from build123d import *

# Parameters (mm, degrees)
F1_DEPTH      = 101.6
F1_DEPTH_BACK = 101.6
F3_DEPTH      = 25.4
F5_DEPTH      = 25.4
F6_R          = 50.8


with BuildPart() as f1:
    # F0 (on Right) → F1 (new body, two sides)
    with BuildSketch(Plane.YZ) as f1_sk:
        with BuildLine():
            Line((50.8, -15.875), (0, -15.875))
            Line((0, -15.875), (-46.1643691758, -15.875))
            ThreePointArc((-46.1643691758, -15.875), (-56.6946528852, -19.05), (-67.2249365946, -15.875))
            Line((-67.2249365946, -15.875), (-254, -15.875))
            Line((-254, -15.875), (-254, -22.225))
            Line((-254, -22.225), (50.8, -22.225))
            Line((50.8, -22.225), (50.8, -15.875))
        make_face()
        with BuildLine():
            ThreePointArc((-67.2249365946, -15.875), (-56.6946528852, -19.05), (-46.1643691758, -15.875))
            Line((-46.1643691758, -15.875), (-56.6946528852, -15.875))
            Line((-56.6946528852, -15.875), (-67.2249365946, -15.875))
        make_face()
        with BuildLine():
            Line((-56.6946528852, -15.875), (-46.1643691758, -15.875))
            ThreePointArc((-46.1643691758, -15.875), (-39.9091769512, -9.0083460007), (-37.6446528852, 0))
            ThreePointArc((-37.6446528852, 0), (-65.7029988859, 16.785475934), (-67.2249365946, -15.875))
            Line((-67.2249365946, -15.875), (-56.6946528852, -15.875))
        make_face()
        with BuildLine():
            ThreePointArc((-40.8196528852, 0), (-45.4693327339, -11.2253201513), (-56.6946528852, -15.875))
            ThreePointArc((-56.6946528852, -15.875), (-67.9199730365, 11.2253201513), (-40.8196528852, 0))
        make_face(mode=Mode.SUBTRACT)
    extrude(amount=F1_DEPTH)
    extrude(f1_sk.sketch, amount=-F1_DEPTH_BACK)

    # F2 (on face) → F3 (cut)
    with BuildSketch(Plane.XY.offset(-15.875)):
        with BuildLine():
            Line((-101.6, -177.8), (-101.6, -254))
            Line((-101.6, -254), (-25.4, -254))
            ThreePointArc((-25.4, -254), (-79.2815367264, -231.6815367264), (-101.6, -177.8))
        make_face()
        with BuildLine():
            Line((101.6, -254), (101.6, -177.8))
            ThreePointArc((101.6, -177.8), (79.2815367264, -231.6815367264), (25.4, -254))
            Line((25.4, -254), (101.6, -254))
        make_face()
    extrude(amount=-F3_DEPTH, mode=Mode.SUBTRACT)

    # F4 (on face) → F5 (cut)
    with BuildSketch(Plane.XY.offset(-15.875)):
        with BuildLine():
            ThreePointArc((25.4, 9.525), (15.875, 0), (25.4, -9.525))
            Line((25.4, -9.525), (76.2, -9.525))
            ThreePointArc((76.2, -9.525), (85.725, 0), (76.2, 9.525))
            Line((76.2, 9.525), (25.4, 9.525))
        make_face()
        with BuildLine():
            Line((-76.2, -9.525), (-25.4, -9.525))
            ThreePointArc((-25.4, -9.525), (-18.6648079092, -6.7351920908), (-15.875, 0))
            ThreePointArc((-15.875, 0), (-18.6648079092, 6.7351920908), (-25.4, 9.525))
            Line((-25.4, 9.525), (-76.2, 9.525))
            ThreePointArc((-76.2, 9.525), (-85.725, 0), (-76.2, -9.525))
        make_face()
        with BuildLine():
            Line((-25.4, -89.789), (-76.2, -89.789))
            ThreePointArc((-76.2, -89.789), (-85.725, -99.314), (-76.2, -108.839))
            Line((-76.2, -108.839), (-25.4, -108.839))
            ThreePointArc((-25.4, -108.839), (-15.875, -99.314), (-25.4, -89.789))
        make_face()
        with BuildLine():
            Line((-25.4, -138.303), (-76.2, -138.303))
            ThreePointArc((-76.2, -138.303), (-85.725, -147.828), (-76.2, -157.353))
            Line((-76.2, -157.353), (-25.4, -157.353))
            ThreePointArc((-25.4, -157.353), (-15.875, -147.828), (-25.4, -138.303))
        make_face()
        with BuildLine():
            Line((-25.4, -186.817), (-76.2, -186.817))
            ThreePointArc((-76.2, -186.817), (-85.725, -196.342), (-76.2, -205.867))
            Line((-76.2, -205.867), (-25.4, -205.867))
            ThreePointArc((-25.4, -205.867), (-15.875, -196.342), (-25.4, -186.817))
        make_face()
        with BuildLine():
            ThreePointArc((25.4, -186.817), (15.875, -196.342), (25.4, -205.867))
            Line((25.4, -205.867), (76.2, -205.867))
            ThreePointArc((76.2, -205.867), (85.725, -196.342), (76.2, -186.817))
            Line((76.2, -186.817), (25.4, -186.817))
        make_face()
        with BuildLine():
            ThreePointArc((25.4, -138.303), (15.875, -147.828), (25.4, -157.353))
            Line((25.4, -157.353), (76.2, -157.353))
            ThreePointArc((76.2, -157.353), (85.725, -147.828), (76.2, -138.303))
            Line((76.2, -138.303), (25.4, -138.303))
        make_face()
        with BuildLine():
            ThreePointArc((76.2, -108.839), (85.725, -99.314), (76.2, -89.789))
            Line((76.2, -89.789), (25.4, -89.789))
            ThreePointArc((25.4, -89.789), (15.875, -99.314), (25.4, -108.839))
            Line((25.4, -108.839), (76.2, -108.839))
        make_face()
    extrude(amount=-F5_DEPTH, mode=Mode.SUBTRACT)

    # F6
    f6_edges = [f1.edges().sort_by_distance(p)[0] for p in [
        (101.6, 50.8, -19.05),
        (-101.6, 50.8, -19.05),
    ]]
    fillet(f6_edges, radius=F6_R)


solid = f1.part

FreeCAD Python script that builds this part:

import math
import FreeCAD as App
import Part
import Sketcher
Q = App.Units.Quantity


def edges_at(feature, points):
    """Names of the edges that pass closest to the given points."""
    edges = feature.Shape.Edges
    near = lambda p: min(range(len(edges)), key=lambda i: edges[i].distToShape(Part.Vertex(*p))[0])
    return sorted({f"Edge{near(p) + 1}" for p in points})

doc = App.newDocument("Part")
body = doc.addObject("PartDesign::Body", "Body")

# Sketch on YZ plane
sketch1 = body.newObject("Sketcher::SketchObject", "Sketch")
sketch1.AttachmentSupport = (doc.getObject("YZ_Plane"), [""])
sketch1.MapMode = "FlatFace"
sketch1.addGeometry(Part.LineSegment(App.Vector(51, -16, 0), App.Vector(-46, -16, 0)), False)
sketch1.addGeometry(Part.ArcOfCircle(Part.Circle(App.Vector(-57, 0, 0), App.Vector(0, 0, 1), 19), math.radians(-56), math.radians(0)), False)
sketch1.addGeometry(Part.ArcOfCircle(Part.Circle(App.Vector(-57, 0, 0), App.Vector(0, 0, 1), 19), math.radians(0), math.radians(236)), False)
sketch1.addGeometry(Part.LineSegment(App.Vector(-67, -16, 0), App.Vector(-254, -16, 0)), False)
sketch1.addGeometry(Part.LineSegment(App.Vector(-254, -16, 0), App.Vector(-254, -22, 0)), False)
sketch1.addGeometry(Part.LineSegment(App.Vector(-254, -22, 0), App.Vector(51, -22, 0)), False)
sketch1.addGeometry(Part.LineSegment(App.Vector(51, -22, 0), App.Vector(51, -16, 0)), False)
sketch1.addGeometry(Part.ArcOfCircle(Part.Circle(App.Vector(-57, 0, 0), App.Vector(0, 0, 1), 16), math.radians(0), math.radians(270)), False)
sketch1.addGeometry(Part.ArcOfCircle(Part.Circle(App.Vector(-57, 0, 0), App.Vector(0, 0, 1), 16), math.radians(-90), math.radians(0)), False)
sketch1.addConstraint(Sketcher.Constraint("Coincident", 0, 2, 1, 1))
sketch1.addConstraint(Sketcher.Constraint("Tangent", 1, 2, 2, 1))
sketch1.addConstraint(Sketcher.Constraint("Coincident", 2, 2, 3, 1))
sketch1.addConstraint(Sketcher.Constraint("Coincident", 3, 2, 4, 1))
sketch1.addConstraint(Sketcher.Constraint("Coincident", 4, 2, 5, 1))
sketch1.addConstraint(Sketcher.Constraint("Coincident", 5, 2, 6, 1))
sketch1.addConstraint(Sketcher.Constraint("Coincident", 6, 2, 0, 1))
sketch1.addConstraint(Sketcher.Constraint("Tangent", 7, 1, 8, 2))
sketch1.addConstraint(Sketcher.Constraint("Coincident", 8, 1, 7, 2))
sketch1.addConstraint(Sketcher.Constraint("Horizontal", 0))
sketch1.addConstraint(Sketcher.Constraint("Horizontal", 3))
sketch1.addConstraint(Sketcher.Constraint("Vertical", 4))
sketch1.addConstraint(Sketcher.Constraint("Horizontal", 5))
sketch1.addConstraint(Sketcher.Constraint("Vertical", 6))
sketch1.addConstraint(Sketcher.Constraint("Coincident", 7, 3, 1, 3))
sketch1.addConstraint(Sketcher.Constraint("Equal", 1, 2))
sketch1.addConstraint(Sketcher.Constraint("PointOnObject", 1, 3, -1))
sketch1.addConstraint(Sketcher.Constraint("PointOnObject", 1, 2, -1))
sketch1.addConstraint(Sketcher.Constraint("PointOnObject", 7, 1, -1))
sketch1.addConstraint(Sketcher.Constraint("Horizontal", 0, 2, 2, 2))
sketch1.addConstraint(Sketcher.Constraint("Horizontal", 6, 2, 8, 1))
sketch1.addConstraint(Sketcher.Constraint("Vertical", 7, 3, 8, 1))
sketch1.addConstraint(Sketcher.Constraint("DistanceX", 5, 1, 5, 2, Q("12 in")))
sketch1.addConstraint(Sketcher.Constraint("Radius", 1, Q("0.75 in")))
sketch1.addConstraint(Sketcher.Constraint("DistanceX", 3, 2, -1, 1, Q("10 in")))
sketch1.addConstraint(Sketcher.Constraint("Radius", 7, Q("0.625 in")))
sketch1.addConstraint(Sketcher.Constraint("DistanceY", 4, 2, 4, 1, Q("0.25 in")))
sketch1.addConstraint(Sketcher.Constraint("DistanceX", 0, 2, 0, 1, Q("96.964369 mm")))
pad1 = body.newObject("PartDesign::Pad", "Pad")
pad1.Profile = sketch1
pad1.Type = "TwoLengths"
pad1.Length = Q("4 in")
pad1.Length2 = Q("4 in")

# Sketch on XY plane
sketch2 = body.newObject("Sketcher::SketchObject", "Sketch001")
sketch2.AttachmentSupport = (doc.getObject("XY_Plane"), [""])
sketch2.MapMode = "FlatFace"
sketch2.AttachmentOffset = App.Placement(App.Vector(0, 0, -0.625 * 25.4), App.Rotation())
sketch2.addGeometry(Part.LineSegment(App.Vector(-102, -178, 0), App.Vector(-102, -254, 0)), False)
sketch2.addGeometry(Part.LineSegment(App.Vector(-102, -254, 0), App.Vector(-25, -254, 0)), False)
sketch2.addGeometry(Part.ArcOfCircle(Part.Circle(App.Vector(-25, -178, 0), App.Vector(0, 0, 1), 76), math.radians(180), math.radians(270)), False)
sketch2.addGeometry(Part.LineSegment(App.Vector(102, -254, 0), App.Vector(102, -178, 0)), False)
sketch2.addGeometry(Part.ArcOfCircle(Part.Circle(App.Vector(25, -178, 0), App.Vector(0, 0, 1), 76), math.radians(-90), math.radians(0)), False)
sketch2.addGeometry(Part.LineSegment(App.Vector(25, -254, 0), App.Vector(102, -254, 0)), False)
sketch2.addConstraint(Sketcher.Constraint("Coincident", 0, 2, 1, 1))
sketch2.addConstraint(Sketcher.Constraint("Tangent", 1, 2, 2, 2))
sketch2.addConstraint(Sketcher.Constraint("Tangent", 2, 1, 0, 1))
sketch2.addConstraint(Sketcher.Constraint("Tangent", 3, 2, 4, 2))
sketch2.addConstraint(Sketcher.Constraint("Tangent", 4, 1, 5, 1))
sketch2.addConstraint(Sketcher.Constraint("Coincident", 5, 2, 3, 1))
sketch2.addConstraint(Sketcher.Constraint("Vertical", 0))
sketch2.addConstraint(Sketcher.Constraint("Horizontal", 1))
sketch2.addConstraint(Sketcher.Constraint("Vertical", 3))
sketch2.addConstraint(Sketcher.Constraint("Horizontal", 5))
sketch2.addConstraint(Sketcher.Constraint("Equal", 2, 4))
sketch2.addConstraint(Sketcher.Constraint("Symmetric", 2, 3, 4, 3, -2))
sketch2.addConstraint(Sketcher.Constraint("Radius", 2, Q("3 in")))
sketch2.addConstraint(Sketcher.Constraint("DistanceX", 2, 3, -1, 1, Q("1 in")))
sketch2.addConstraint(Sketcher.Constraint("DistanceY", 2, 3, -1, 1, Q("7 in")))
pocket1 = body.newObject("PartDesign::Pocket", "Pocket")
pocket1.Profile = sketch2
pocket1.Length = Q("1 in")

# Sketch on XY plane
sketch3 = body.newObject("Sketcher::SketchObject", "Sketch002")
sketch3.AttachmentSupport = (doc.getObject("XY_Plane"), [""])
sketch3.MapMode = "FlatFace"
sketch3.AttachmentOffset = App.Placement(App.Vector(0, 0, -0.625 * 25.4), App.Rotation())
sketch3.addGeometry(Part.ArcOfCircle(Part.Circle(App.Vector(25, 0, 0), App.Vector(0, 0, 1), 10), math.radians(90), math.radians(270)), False)
sketch3.addGeometry(Part.LineSegment(App.Vector(25, -10, 0), App.Vector(76, -10, 0)), False)
sketch3.addGeometry(Part.ArcOfCircle(Part.Circle(App.Vector(76, 0, 0), App.Vector(0, 0, 1), 10), math.radians(-90), math.radians(90)), False)
sketch3.addGeometry(Part.LineSegment(App.Vector(76, 10, 0), App.Vector(25, 10, 0)), False)
sketch3.addGeometry(Part.LineSegment(App.Vector(-76, -10, 0), App.Vector(-25, -10, 0)), False)
sketch3.addGeometry(Part.ArcOfCircle(Part.Circle(App.Vector(-25, 0, 0), App.Vector(0, 0, 1), 10), math.radians(-90), math.radians(0)), False)
sketch3.addGeometry(Part.ArcOfCircle(Part.Circle(App.Vector(-25, 0, 0), App.Vector(0, 0, 1), 10), math.radians(0), math.radians(90)), False)
sketch3.addGeometry(Part.LineSegment(App.Vector(-25, 10, 0), App.Vector(-76, 10, 0)), False)
sketch3.addGeometry(Part.ArcOfCircle(Part.Circle(App.Vector(-76, 0, 0), App.Vector(0, 0, 1), 10), math.radians(90), math.radians(270)), False)
sketch3.addGeometry(Part.LineSegment(App.Vector(-25, -90, 0), App.Vector(-76, -90, 0)), False)
sketch3.addGeometry(Part.ArcOfCircle(Part.Circle(App.Vector(-76, -99, 0), App.Vector(0, 0, 1), 10), math.radians(90), math.radians(270)), False)
sketch3.addGeometry(Part.LineSegment(App.Vector(-76, -109, 0), App.Vector(-25, -109, 0)), False)
sketch3.addGeometry(Part.ArcOfCircle(Part.Circle(App.Vector(-25, -99, 0), App.Vector(0, 0, 1), 10), math.radians(-90), math.radians(90)), False)
sketch3.addGeometry(Part.LineSegment(App.Vector(-25, -138, 0), App.Vector(-76, -138, 0)), False)
sketch3.addGeometry(Part.ArcOfCircle(Part.Circle(App.Vector(-76, -148, 0), App.Vector(0, 0, 1), 10), math.radians(90), math.radians(270)), False)
sketch3.addGeometry(Part.LineSegment(App.Vector(-76, -157, 0), App.Vector(-25, -157, 0)), False)
sketch3.addGeometry(Part.ArcOfCircle(Part.Circle(App.Vector(-25, -148, 0), App.Vector(0, 0, 1), 10), math.radians(-90), math.radians(90)), False)
sketch3.addGeometry(Part.LineSegment(App.Vector(-25, -187, 0), App.Vector(-76, -187, 0)), False)
sketch3.addGeometry(Part.ArcOfCircle(Part.Circle(App.Vector(-76, -196, 0), App.Vector(0, 0, 1), 10), math.radians(90), math.radians(270)), False)
sketch3.addGeometry(Part.LineSegment(App.Vector(-76, -206, 0), App.Vector(-25, -206, 0)), False)
sketch3.addGeometry(Part.ArcOfCircle(Part.Circle(App.Vector(-25, -196, 0), App.Vector(0, 0, 1), 10), math.radians(-90), math.radians(90)), False)
sketch3.addGeometry(Part.ArcOfCircle(Part.Circle(App.Vector(25, -196, 0), App.Vector(0, 0, 1), 10), math.radians(90), math.radians(270)), False)
sketch3.addGeometry(Part.LineSegment(App.Vector(25, -206, 0), App.Vector(76, -206, 0)), False)
sketch3.addGeometry(Part.ArcOfCircle(Part.Circle(App.Vector(76, -196, 0), App.Vector(0, 0, 1), 10), math.radians(-90), math.radians(90)), False)
sketch3.addGeometry(Part.LineSegment(App.Vector(76, -187, 0), App.Vector(25, -187, 0)), False)
sketch3.addGeometry(Part.ArcOfCircle(Part.Circle(App.Vector(25, -148, 0), App.Vector(0, 0, 1), 10), math.radians(90), math.radians(270)), False)
sketch3.addGeometry(Part.LineSegment(App.Vector(25, -157, 0), App.Vector(76, -157, 0)), False)
sketch3.addGeometry(Part.ArcOfCircle(Part.Circle(App.Vector(76, -148, 0), App.Vector(0, 0, 1), 10), math.radians(-90), math.radians(90)), False)
sketch3.addGeometry(Part.LineSegment(App.Vector(76, -138, 0), App.Vector(25, -138, 0)), False)
sketch3.addGeometry(Part.ArcOfCircle(Part.Circle(App.Vector(76, -99, 0), App.Vector(0, 0, 1), 10), math.radians(-90), math.radians(90)), False)
sketch3.addGeometry(Part.LineSegment(App.Vector(76, -90, 0), App.Vector(25, -90, 0)), False)
sketch3.addGeometry(Part.ArcOfCircle(Part.Circle(App.Vector(25, -99, 0), App.Vector(0, 0, 1), 10), math.radians(90), math.radians(270)), False)
sketch3.addGeometry(Part.LineSegment(App.Vector(25, -109, 0), App.Vector(76, -109, 0)), False)
sketch3.addConstraint(Sketcher.Constraint("Tangent", 0, 2, 1, 1))
sketch3.addConstraint(Sketcher.Constraint("Tangent", 1, 2, 2, 1))
sketch3.addConstraint(Sketcher.Constraint("Tangent", 2, 2, 3, 1))
sketch3.addConstraint(Sketcher.Constraint("Tangent", 3, 2, 0, 1))
sketch3.addConstraint(Sketcher.Constraint("Tangent", 4, 2, 5, 1))
sketch3.addConstraint(Sketcher.Constraint("Tangent", 5, 2, 6, 1))
sketch3.addConstraint(Sketcher.Constraint("Tangent", 6, 2, 7, 1))
sketch3.addConstraint(Sketcher.Constraint("Tangent", 7, 2, 8, 1))
sketch3.addConstraint(Sketcher.Constraint("Tangent", 8, 2, 4, 1))
sketch3.addConstraint(Sketcher.Constraint("Tangent", 9, 2, 10, 1))
sketch3.addConstraint(Sketcher.Constraint("Tangent", 10, 2, 11, 1))
sketch3.addConstraint(Sketcher.Constraint("Tangent", 11, 2, 12, 1))
sketch3.addConstraint(Sketcher.Constraint("Tangent", 12, 2, 9, 1))
sketch3.addConstraint(Sketcher.Constraint("Tangent", 13, 2, 14, 1))
sketch3.addConstraint(Sketcher.Constraint("Tangent", 14, 2, 15, 1))
sketch3.addConstraint(Sketcher.Constraint("Tangent", 15, 2, 16, 1))
sketch3.addConstraint(Sketcher.Constraint("Tangent", 16, 2, 13, 1))
sketch3.addConstraint(Sketcher.Constraint("Tangent", 17, 2, 18, 1))
sketch3.addConstraint(Sketcher.Constraint("Tangent", 18, 2, 19, 1))
sketch3.addConstraint(Sketcher.Constraint("Tangent", 19, 2, 20, 1))
sketch3.addConstraint(Sketcher.Constraint("Tangent", 20, 2, 17, 1))
sketch3.addConstraint(Sketcher.Constraint("Tangent", 21, 2, 22, 1))
sketch3.addConstraint(Sketcher.Constraint("Tangent", 22, 2, 23, 1))
sketch3.addConstraint(Sketcher.Constraint("Tangent", 23, 2, 24, 1))
sketch3.addConstraint(Sketcher.Constraint("Tangent", 24, 2, 21, 1))
sketch3.addConstraint(Sketcher.Constraint("Tangent", 25, 2, 26, 1))
sketch3.addConstraint(Sketcher.Constraint("Tangent", 26, 2, 27, 1))
sketch3.addConstraint(Sketcher.Constraint("Tangent", 27, 2, 28, 1))
sketch3.addConstraint(Sketcher.Constraint("Tangent", 28, 2, 25, 1))
sketch3.addConstraint(Sketcher.Constraint("Tangent", 29, 2, 30, 1))
sketch3.addConstraint(Sketcher.Constraint("Tangent", 30, 2, 31, 1))
sketch3.addConstraint(Sketcher.Constraint("Tangent", 31, 2, 32, 1))
sketch3.addConstraint(Sketcher.Constraint("Tangent", 32, 2, 29, 1))
sketch3.addConstraint(Sketcher.Constraint("Horizontal", 1))
sketch3.addConstraint(Sketcher.Constraint("Horizontal", 3))
sketch3.addConstraint(Sketcher.Constraint("Horizontal", 4))
sketch3.addConstraint(Sketcher.Constraint("Horizontal", 7))
sketch3.addConstraint(Sketcher.Constraint("Horizontal", 9))
sketch3.addConstraint(Sketcher.Constraint("Horizontal", 11))
sketch3.addConstraint(Sketcher.Constraint("Horizontal", 13))
sketch3.addConstraint(Sketcher.Constraint("Horizontal", 15))
sketch3.addConstraint(Sketcher.Constraint("Horizontal", 17))
sketch3.addConstraint(Sketcher.Constraint("Horizontal", 19))
sketch3.addConstraint(Sketcher.Constraint("Horizontal", 22))
sketch3.addConstraint(Sketcher.Constraint("Horizontal", 24))
sketch3.addConstraint(Sketcher.Constraint("Horizontal", 26))
sketch3.addConstraint(Sketcher.Constraint("Horizontal", 28))
sketch3.addConstraint(Sketcher.Constraint("Horizontal", 30))
sketch3.addConstraint(Sketcher.Constraint("Horizontal", 32))
sketch3.addConstraint(Sketcher.Constraint("Equal", 2, 5))
sketch3.addConstraint(Sketcher.Constraint("Equal", 5, 6))
sketch3.addConstraint(Sketcher.Constraint("Equal", 8, 10))
sketch3.addConstraint(Sketcher.Constraint("Equal", 12, 14))
sketch3.addConstraint(Sketcher.Constraint("Equal", 16, 18))
sketch3.addConstraint(Sketcher.Constraint("Equal", 20, 21))
sketch3.addConstraint(Sketcher.Constraint("Equal", 23, 25))
sketch3.addConstraint(Sketcher.Constraint("Equal", 27, 29))
sketch3.addConstraint(Sketcher.Constraint("Symmetric", 0, 3, 5, 3, -1, 1))
sketch3.addConstraint(Sketcher.Constraint("Symmetric", 2, 3, 8, 3, -2))
sketch3.addConstraint(Sketcher.Constraint("Symmetric", 20, 3, 21, 3, -2))
sketch3.addConstraint(Sketcher.Constraint("Symmetric", 16, 3, 25, 3, -2))
sketch3.addConstraint(Sketcher.Constraint("Symmetric", 10, 3, 29, 3, -2))
sketch3.addConstraint(Sketcher.Constraint("PointOnObject", 5, 2, -1))
sketch3.addConstraint(Sketcher.Constraint("Vertical", 8, 3, 10, 3))
sketch3.addConstraint(Sketcher.Constraint("Vertical", 6, 3, 12, 3))
sketch3.addConstraint(Sketcher.Constraint("Vertical", 10, 3, 14, 3))
sketch3.addConstraint(Sketcher.Constraint("Vertical", 12, 3, 16, 3))
sketch3.addConstraint(Sketcher.Constraint("Vertical", 14, 3, 18, 3))
sketch3.addConstraint(Sketcher.Constraint("Vertical", 16, 3, 20, 3))
sketch3.addConstraint(Sketcher.Constraint("Vertical", 2, 3, 23, 3))
sketch3.addConstraint(Sketcher.Constraint("Vertical", 23, 3, 27, 3))
sketch3.addConstraint(Sketcher.Constraint("Vertical", 25, 3, 31, 3))
sketch3.addConstraint(Sketcher.Constraint("DistanceX", 1, 1, 1, 2, Q("2 in")))
sketch3.addConstraint(Sketcher.Constraint("DistanceX", -1, 1, 0, 3, Q("1 in")))
sketch3.addConstraint(Sketcher.Constraint("Radius", 0, Q("0.375 in")))
sketch3.addConstraint(Sketcher.Constraint("DistanceY", 10, 3, -1, 1, Q("3.91 in")))
sketch3.addConstraint(Sketcher.Constraint("DistanceY", 14, 3, -1, 1, Q("5.82 in")))
sketch3.addConstraint(Sketcher.Constraint("DistanceY", 18, 3, -1, 1, Q("7.73 in")))
pocket2 = body.newObject("PartDesign::Pocket", "Pocket001")
pocket2.Profile = sketch3
pocket2.Length = Q("1 in")
doc.recompute()

fillet = body.newObject("PartDesign::Fillet", "Fillet")
fillet.Base = (pocket2, edges_at(pocket2, [(101.6, 50.8, -19.05), (-101.6, 50.8, -19.05)]))
fillet.Radius = Q("2 in")

doc.recompute()
